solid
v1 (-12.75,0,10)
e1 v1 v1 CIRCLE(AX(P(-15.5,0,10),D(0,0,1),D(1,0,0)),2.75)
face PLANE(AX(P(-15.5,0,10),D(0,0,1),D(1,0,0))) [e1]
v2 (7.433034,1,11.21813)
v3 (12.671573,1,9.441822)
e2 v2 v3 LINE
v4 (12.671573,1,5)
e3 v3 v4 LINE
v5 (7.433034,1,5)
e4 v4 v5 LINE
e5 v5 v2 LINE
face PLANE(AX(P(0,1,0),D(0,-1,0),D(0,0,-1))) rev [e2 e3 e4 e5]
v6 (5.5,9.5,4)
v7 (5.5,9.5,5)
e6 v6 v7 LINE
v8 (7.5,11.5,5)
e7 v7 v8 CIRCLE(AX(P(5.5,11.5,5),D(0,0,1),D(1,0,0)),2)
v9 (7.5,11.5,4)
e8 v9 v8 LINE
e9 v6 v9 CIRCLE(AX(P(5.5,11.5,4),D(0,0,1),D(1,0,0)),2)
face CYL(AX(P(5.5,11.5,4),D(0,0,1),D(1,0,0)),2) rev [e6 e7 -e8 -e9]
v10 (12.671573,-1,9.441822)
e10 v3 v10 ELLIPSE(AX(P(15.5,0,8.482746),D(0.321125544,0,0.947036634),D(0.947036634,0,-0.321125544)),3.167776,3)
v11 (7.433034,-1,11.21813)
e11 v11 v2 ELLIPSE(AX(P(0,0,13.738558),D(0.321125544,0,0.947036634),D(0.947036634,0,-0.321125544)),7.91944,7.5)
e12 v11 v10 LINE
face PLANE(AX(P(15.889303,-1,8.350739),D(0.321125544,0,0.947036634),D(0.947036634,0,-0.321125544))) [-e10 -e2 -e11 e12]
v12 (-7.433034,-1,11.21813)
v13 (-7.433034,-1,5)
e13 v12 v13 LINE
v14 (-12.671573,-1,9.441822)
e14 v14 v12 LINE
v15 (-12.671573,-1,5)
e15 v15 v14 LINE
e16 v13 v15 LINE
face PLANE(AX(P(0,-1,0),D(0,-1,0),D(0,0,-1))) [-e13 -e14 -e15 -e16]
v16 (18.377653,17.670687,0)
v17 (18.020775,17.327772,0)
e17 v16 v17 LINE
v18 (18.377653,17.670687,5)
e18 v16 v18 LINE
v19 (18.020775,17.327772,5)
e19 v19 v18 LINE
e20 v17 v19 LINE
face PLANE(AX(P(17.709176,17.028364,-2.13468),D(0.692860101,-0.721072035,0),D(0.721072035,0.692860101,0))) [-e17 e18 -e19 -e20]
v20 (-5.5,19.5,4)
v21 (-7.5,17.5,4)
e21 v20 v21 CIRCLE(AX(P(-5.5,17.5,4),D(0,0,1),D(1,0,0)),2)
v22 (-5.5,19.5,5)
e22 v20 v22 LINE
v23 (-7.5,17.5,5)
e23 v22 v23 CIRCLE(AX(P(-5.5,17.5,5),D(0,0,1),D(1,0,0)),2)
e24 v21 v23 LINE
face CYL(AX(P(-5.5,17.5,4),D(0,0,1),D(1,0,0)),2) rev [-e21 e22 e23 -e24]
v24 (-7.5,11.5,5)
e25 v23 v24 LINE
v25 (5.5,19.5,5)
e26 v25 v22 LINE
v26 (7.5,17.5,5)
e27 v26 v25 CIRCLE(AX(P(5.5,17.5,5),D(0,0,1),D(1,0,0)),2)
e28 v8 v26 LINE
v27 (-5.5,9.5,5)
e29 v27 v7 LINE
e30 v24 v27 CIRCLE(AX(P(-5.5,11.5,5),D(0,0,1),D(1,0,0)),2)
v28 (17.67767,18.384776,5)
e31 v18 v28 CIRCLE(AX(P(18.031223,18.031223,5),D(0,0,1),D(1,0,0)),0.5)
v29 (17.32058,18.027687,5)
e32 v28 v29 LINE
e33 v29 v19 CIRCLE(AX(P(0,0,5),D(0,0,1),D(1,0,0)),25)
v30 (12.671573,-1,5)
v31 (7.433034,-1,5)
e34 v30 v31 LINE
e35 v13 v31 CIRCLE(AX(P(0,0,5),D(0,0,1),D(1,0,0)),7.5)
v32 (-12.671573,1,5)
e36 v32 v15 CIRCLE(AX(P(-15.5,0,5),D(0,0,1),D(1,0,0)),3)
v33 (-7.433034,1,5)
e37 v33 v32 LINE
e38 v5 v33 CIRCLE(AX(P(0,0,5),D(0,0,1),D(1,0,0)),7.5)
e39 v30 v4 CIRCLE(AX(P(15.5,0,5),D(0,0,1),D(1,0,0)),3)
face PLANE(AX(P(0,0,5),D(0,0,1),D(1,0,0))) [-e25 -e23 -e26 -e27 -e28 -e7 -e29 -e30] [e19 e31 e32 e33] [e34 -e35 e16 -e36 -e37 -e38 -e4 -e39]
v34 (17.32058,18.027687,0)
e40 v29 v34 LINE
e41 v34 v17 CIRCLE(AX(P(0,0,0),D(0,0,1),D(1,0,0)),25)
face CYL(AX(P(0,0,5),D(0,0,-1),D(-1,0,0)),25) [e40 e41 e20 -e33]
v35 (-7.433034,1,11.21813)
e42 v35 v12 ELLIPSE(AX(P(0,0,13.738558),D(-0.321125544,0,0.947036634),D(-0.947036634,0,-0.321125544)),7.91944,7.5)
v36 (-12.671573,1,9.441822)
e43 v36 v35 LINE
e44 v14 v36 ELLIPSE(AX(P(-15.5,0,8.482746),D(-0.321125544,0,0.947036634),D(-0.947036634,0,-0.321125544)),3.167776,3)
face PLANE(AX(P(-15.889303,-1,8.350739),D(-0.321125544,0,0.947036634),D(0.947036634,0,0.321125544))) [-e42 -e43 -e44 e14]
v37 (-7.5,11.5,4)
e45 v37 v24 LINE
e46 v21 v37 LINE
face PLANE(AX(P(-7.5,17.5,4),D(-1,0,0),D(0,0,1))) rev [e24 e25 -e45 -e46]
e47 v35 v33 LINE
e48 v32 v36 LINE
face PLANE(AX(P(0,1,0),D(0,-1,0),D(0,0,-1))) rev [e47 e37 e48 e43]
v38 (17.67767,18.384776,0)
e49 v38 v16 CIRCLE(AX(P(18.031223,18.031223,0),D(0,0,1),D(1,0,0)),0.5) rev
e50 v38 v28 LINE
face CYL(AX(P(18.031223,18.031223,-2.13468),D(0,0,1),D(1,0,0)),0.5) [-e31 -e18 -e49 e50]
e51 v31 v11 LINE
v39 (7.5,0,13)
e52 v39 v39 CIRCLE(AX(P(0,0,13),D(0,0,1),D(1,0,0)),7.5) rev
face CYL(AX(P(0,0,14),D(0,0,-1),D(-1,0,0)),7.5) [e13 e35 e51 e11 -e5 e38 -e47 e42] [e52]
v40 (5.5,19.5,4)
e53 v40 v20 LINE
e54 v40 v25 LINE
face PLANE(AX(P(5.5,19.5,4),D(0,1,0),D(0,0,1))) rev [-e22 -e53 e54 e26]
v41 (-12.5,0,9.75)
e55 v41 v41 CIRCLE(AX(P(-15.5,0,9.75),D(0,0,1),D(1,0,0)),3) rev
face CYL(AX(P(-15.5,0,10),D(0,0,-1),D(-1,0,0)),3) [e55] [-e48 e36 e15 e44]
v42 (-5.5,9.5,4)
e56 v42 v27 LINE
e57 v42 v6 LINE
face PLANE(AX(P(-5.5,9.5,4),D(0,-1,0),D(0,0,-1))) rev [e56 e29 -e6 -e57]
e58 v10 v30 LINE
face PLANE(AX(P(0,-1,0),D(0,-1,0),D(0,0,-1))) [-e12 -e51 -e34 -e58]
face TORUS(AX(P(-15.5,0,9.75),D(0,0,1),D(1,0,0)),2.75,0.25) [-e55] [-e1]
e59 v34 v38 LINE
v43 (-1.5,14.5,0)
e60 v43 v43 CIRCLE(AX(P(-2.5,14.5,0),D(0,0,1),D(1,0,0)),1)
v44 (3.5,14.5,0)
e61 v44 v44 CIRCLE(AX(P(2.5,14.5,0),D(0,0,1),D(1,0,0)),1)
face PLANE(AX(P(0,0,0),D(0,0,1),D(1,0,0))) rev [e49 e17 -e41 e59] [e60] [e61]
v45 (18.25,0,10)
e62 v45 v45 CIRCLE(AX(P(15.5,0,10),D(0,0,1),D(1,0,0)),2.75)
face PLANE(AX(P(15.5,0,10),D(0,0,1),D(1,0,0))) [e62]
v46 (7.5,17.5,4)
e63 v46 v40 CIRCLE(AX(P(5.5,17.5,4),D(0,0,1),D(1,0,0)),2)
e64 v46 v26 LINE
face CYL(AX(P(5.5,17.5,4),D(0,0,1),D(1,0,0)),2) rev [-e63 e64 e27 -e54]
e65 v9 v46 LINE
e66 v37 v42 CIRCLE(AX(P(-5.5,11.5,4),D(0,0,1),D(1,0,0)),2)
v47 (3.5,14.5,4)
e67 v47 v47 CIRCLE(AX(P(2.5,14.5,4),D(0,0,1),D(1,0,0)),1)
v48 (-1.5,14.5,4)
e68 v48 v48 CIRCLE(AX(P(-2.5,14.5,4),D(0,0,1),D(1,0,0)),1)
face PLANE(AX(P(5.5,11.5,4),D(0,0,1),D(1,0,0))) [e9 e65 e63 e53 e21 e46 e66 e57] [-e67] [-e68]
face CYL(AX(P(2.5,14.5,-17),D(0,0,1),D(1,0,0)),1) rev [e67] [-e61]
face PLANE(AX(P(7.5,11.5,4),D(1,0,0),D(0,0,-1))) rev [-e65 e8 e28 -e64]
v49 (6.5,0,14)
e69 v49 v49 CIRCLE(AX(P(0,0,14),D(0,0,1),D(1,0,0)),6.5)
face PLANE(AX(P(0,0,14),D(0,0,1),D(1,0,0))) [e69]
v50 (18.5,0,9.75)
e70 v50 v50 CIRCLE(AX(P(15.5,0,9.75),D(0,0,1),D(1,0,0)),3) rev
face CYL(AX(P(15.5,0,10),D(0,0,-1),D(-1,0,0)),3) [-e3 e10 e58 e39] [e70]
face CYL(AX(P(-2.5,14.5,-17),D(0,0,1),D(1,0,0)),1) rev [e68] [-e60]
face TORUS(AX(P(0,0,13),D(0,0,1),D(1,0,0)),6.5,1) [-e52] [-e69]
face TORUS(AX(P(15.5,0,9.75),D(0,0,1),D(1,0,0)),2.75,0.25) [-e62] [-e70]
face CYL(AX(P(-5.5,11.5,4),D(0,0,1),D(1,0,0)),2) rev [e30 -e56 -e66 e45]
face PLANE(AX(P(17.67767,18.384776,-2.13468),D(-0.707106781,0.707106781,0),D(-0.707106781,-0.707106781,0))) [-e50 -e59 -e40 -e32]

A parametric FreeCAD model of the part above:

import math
import FreeCAD as App
import Part
import Sketcher
from FreeCAD import Vector
Q = App.Units.Quantity


def edges_at(feature, points):
    """Names of the edges that pass closest to the given points."""
    edges = feature.Shape.Edges
    near = lambda p: min(range(len(edges)), key=lambda i: edges[i].distToShape(Part.Vertex(*p))[0])
    return sorted({f"Edge{near(p) + 1}" for p in points})


def add_polygon(sketch, points):
    """Adds a closed chain of lines whose ends are joined by coincident constraints."""
    first, n = sketch.GeometryCount, len(points)
    for a, b in zip(points, points[1:] + points[:1]):
        sketch.addGeometry(Part.LineSegment(App.Vector(*a, 0), App.Vector(*b, 0)), False)
    for i in range(n):
        sketch.addConstraint(Sketcher.Constraint("Coincident", first + i, 2, first + (i + 1) % n, 1))

doc = App.newDocument("Part")
body = doc.addObject("PartDesign::Body", "Body")

sketch1 = doc.addObject("Sketcher::SketchObject", "Sketch")
body.addObject(sketch1)
sketch1.AttachmentSupport = (doc.XY_Plane, [""])
sketch1.MapMode = "FlatFace"
sketch1.addGeometry(Part.Circle(Vector(0, 0, 0), Vector(0, 0, 1), 25), False)
sketch1.addConstraint([
    Sketcher.Constraint("Coincident", 0, 3, -1, 1),
    Sketcher.Constraint("Diameter", 0, 50.0),
])
pad1 = doc.addObject("PartDesign::Pad", "Pad")
body.addObject(pad1)
pad1.Profile = sketch1
pad1.Length = 5

sketch2 = doc.addObject("Sketcher::SketchObject", "Sketch001")
body.addObject(sketch2)
sketch2.AttachmentSupport = (doc.XY_Plane, [""])
sketch2.MapMode = "FlatFace"
sketch2.AttachmentOffset = App.Placement(Vector(0, 0, 5), App.Rotation())
sketch2.addGeometry(Part.Circle(Vector(0, 0, 0), Vector(0, 0, 1), 8), False)
sketch2.addConstraint([
    Sketcher.Constraint("Coincident", 0, 3, -1, 1),
    Sketcher.Constraint("Diameter", 0, 15.0),
])
pad2 = doc.addObject("PartDesign::Pad", "Pad001")
body.addObject(pad2)
pad2.Profile = sketch2
pad2.Length = 9

sketch3 = doc.addObject("Sketcher::SketchObject", "Sketch002")
body.addObject(sketch3)
sketch3.AttachmentSupport = (doc.XY_Plane, [""])
sketch3.MapMode = "FlatFace"
sketch3.AttachmentOffset = App.Placement(Vector(0, 0, 5), App.Rotation())
sketch3.addGeometry([
    Part.Circle(Vector(15.5, 0, 0), Vector(0, 0, 1), 3),
    Part.Circle(Vector(-15.5, 0, 0), Vector(0, 0, 1), 3),
], False)
sketch3.addConstraint([
    Sketcher.Constraint("Equal", 0, 1),
    Sketcher.Constraint("Symmetric", 0, 3, 1, 3, -1, 1),
    Sketcher.Constraint("PointOnObject", 0, 3, -1),
    Sketcher.Constraint("Diameter", 0, 6.0),
    Sketcher.Constraint("DistanceX", 1, 3, 0, 3, 31.0),
])
pad3 = doc.addObject("PartDesign::Pad", "Pad002")
body.addObject(pad3)
pad3.Profile = sketch3
pad3.Length = 5
doc.recompute()

fillet = doc.addObject("PartDesign::Fillet", "Fillet")
body.addObject(fillet)
fillet.Base = (pad3, edges_at(pad3, [(-7.5, 0, 14)]))
fillet.Radius = 1

sketch4 = doc.addObject("Sketcher::SketchObject", "Sketch003")
body.addObject(sketch4)
sketch4.AttachmentSupport = (doc.XZ_Plane, [""])
sketch4.MapMode = "FlatFace"
add_polygon(sketch4, [(-15.9, 8.4), (-5, 12), (-5, 5), (-15.9, 5)])
add_polygon(sketch4, [(5, 5), (5, 12), (15.9, 8.4), (15.9, 5)])
sketch4.addConstraint([
    Sketcher.Constraint("Vertical", 1),
    Sketcher.Constraint("Horizontal", 2),
    Sketcher.Constraint("Vertical", 3),
    Sketcher.Constraint("Vertical", 4),
    Sketcher.Constraint("Vertical", 6),
    Sketcher.Constraint("Horizontal", 7),
    Sketcher.Constraint("Symmetric", 0, 2, 4, 2, -2),
    Sketcher.Constraint("Symmetric", 3, 2, 5, 2, -2),
    Sketcher.Constraint("Horizontal", 2, 2, 6, 2),
    Sketcher.Constraint("DistanceY", -1, 1, 1, 2, 5.0),
    Sketcher.Constraint("DistanceY", 3, 1, 3, 2, 3.350739),
    Sketcher.Constraint("Distance", 0, 11.485719),
    Sketcher.Constraint("DistanceX", 2, 2, 2, 1, 10.877397),
    Sketcher.Constraint("DistanceX", 3, 2, 4, 2, 20.90121),
])
pad4 = doc.addObject("PartDesign::Pad", "Pad003")
body.addObject(pad4)
pad4.Profile = sketch4
pad4.Type = "TwoLengths"
pad4.Length = 1
pad4.Length2 = 1
pad4.Reversed = True
doc.recompute()

fillet2 = doc.addObject("PartDesign::Fillet", "Fillet001")
body.addObject(fillet2)
fillet2.Base = (pad4, edges_at(pad4, [(-18.5, 0, 10), (12.5, 0, 10)]))
fillet2.Radius = 0.25

sketch5 = doc.addObject("Sketcher::SketchObject", "Sketch004")
body.addObject(sketch5)
sketch5.AttachmentSupport = (doc.XY_Plane, [""])
sketch5.MapMode = "FlatFace"
sketch5.AttachmentOffset = App.Placement(Vector(0, 0, 5), App.Rotation())
sketch5.addGeometry([
    Part.LineSegment(Vector(17.7, 18.4, 0), Vector(17, 17.7, 0)),
    Part.LineSegment(Vector(17, 17.7, 0), Vector(17.7, 17, 0)),
    Part.LineSegment(Vector(17.7, 17, 0), Vector(18.4, 17.7, 0)),
    Part.ArcOfCircle(Part.Circle(Vector(18, 18, 0), Vector(0, 0, 1), 0.5), math.radians(-46), math.radians(135)),
], False)
sketch5.addConstraint([
    Sketcher.Constraint("Coincident", 0, 2, 1, 1),
    Sketcher.Constraint("Coincident", 1, 2, 2, 1),
    Sketcher.Constraint("Tangent", 2, 2, 3, 1),
    Sketcher.Constraint("Tangent", 3, 2, 0, 1),
    Sketcher.Constraint("Perpendicular", 0, 1),
    Sketcher.Constraint("Radius", 3, 0.5),
    Sketcher.Constraint("Angle", 0, Q("-135 deg")),
    Sketcher.Constraint("DistanceY", 0, 2, 3, 3, 0.308899),
    Sketcher.Constraint("Distance", 2, 0.927059),
    Sketcher.Constraint("DistanceX", -1, 1, 3, 2, 17.67767),
    Sketcher.Constraint("DistanceY", -1, 1, 3, 3, 18.031223),
])
pad5 = doc.addObject("PartDesign::Pad", "Pad004")
body.addObject(pad5)
pad5.Profile = sketch5
pad5.Length = 5
pad5.Reversed = True

sketch6 = doc.addObject("Sketcher::SketchObject", "Sketch005")
body.addObject(sketch6)
sketch6.AttachmentSupport = (doc.XY_Plane, [""])
sketch6.MapMode = "FlatFace"
sketch6.AttachmentOffset = App.Placement(Vector(0, 0, 5), App.Rotation())
sketch6.addGeometry([
    Part.LineSegment(Vector(-5.5, 9.5, 0), Vector(5.5, 9.5, 0)),
    Part.ArcOfCircle(Part.Circle(Vector(5.5, 11.5, 0), Vector(0, 0, 1), 2), math.radians(-90), math.radians(0)),
    Part.LineSegment(Vector(7.5, 11.5, 0), Vector(7.5, 17.5, 0)),
    Part.ArcOfCircle(Part.Circle(Vector(5.5, 17.5, 0), Vector(0, 0, 1), 2), math.radians(0), math.radians(90)),
    Part.LineSegment(Vector(5.5, 19.5, 0), Vector(-5.5, 19.5, 0)),
    Part.ArcOfCircle(Part.Circle(Vector(-5.5, 17.5, 0), Vector(0, 0, 1), 2), math.radians(90), math.radians(180)),
    Part.LineSegment(Vector(-7.5, 17.5, 0), Vector(-7.5, 11.5, 0)),
    Part.ArcOfCircle(Part.Circle(Vector(-5.5, 11.5, 0), Vector(0, 0, 1), 2), math.radians(-180), math.radians(-90)),
], False)
sketch6.addConstraint([
    Sketcher.Constraint("Tangent", 0, 2, 1, 1),
    Sketcher.Constraint("Tangent", 1, 2, 2, 1),
    Sketcher.Constraint("Tangent", 2, 2, 3, 1),
    Sketcher.Constraint("Tangent", 3, 2, 4, 1),
    Sketcher.Constraint("Tangent", 4, 2, 5, 1),
    Sketcher.Constraint("Tangent", 5, 2, 6, 1),
    Sketcher.Constraint("Tangent", 6, 2, 7, 1),
    Sketcher.Constraint("Tangent", 7, 2, 0, 1),
    Sketcher.Constraint("Horizontal", 0),
    Sketcher.Constraint("Vertical", 2),
    Sketcher.Constraint("Horizontal", 4),
    Sketcher.Constraint("Vertical", 6),
    Sketcher.Constraint("Equal", 1, 3),
    Sketcher.Constraint("Equal", 3, 5),
    Sketcher.Constraint("Equal", 5, 7),
    Sketcher.Constraint("Radius", 1, 2.0),
    Sketcher.Constraint("DistanceX", 0, 1, 0, 2, 11.0),
    Sketcher.Constraint("DistanceY", 2, 1, 2, 2, 6.0),
    Sketcher.Constraint("DistanceX", -1, 1, 1, 3, 5.5),
    Sketcher.Constraint("DistanceY", -1, 1, 1, 3, 11.5),
])
pocket1 = doc.addObject("PartDesign::Pocket", "Pocket")
body.addObject(pocket1)
pocket1.Profile = sketch6
pocket1.Length = 1

sketch7 = doc.addObject("Sketcher::SketchObject", "Sketch006")
body.addObject(sketch7)
sketch7.AttachmentSupport = (doc.XY_Plane, [""])
sketch7.MapMode = "FlatFace"
sketch7.AttachmentOffset = App.Placement(Vector(0, 0, 4), App.Rotation())
sketch7.addGeometry([
    Part.Circle(Vector(-2.5, 14.5, 0), Vector(0, 0, 1), 1),
    Part.Circle(Vector(2.5, 14.5, 0), Vector(0, 0, 1), 1),
], False)
sketch7.addConstraint([
    Sketcher.Constraint("Equal", 0, 1),
    Sketcher.Constraint("Symmetric", 0, 3, 1, 3, -2),
    Sketcher.Constraint("Diameter", 0, 2.0),
    Sketcher.Constraint("DistanceX", 0, 3, 1, 3, 5.0),
    Sketcher.Constraint("DistanceY", -1, 1, 0, 3, 14.5),
])
pocket2 = doc.addObject("PartDesign::Pocket", "Pocket001")
body.addObject(pocket2)
pocket2.Profile = sketch7
pocket2.Length = 21

doc.recompute()
